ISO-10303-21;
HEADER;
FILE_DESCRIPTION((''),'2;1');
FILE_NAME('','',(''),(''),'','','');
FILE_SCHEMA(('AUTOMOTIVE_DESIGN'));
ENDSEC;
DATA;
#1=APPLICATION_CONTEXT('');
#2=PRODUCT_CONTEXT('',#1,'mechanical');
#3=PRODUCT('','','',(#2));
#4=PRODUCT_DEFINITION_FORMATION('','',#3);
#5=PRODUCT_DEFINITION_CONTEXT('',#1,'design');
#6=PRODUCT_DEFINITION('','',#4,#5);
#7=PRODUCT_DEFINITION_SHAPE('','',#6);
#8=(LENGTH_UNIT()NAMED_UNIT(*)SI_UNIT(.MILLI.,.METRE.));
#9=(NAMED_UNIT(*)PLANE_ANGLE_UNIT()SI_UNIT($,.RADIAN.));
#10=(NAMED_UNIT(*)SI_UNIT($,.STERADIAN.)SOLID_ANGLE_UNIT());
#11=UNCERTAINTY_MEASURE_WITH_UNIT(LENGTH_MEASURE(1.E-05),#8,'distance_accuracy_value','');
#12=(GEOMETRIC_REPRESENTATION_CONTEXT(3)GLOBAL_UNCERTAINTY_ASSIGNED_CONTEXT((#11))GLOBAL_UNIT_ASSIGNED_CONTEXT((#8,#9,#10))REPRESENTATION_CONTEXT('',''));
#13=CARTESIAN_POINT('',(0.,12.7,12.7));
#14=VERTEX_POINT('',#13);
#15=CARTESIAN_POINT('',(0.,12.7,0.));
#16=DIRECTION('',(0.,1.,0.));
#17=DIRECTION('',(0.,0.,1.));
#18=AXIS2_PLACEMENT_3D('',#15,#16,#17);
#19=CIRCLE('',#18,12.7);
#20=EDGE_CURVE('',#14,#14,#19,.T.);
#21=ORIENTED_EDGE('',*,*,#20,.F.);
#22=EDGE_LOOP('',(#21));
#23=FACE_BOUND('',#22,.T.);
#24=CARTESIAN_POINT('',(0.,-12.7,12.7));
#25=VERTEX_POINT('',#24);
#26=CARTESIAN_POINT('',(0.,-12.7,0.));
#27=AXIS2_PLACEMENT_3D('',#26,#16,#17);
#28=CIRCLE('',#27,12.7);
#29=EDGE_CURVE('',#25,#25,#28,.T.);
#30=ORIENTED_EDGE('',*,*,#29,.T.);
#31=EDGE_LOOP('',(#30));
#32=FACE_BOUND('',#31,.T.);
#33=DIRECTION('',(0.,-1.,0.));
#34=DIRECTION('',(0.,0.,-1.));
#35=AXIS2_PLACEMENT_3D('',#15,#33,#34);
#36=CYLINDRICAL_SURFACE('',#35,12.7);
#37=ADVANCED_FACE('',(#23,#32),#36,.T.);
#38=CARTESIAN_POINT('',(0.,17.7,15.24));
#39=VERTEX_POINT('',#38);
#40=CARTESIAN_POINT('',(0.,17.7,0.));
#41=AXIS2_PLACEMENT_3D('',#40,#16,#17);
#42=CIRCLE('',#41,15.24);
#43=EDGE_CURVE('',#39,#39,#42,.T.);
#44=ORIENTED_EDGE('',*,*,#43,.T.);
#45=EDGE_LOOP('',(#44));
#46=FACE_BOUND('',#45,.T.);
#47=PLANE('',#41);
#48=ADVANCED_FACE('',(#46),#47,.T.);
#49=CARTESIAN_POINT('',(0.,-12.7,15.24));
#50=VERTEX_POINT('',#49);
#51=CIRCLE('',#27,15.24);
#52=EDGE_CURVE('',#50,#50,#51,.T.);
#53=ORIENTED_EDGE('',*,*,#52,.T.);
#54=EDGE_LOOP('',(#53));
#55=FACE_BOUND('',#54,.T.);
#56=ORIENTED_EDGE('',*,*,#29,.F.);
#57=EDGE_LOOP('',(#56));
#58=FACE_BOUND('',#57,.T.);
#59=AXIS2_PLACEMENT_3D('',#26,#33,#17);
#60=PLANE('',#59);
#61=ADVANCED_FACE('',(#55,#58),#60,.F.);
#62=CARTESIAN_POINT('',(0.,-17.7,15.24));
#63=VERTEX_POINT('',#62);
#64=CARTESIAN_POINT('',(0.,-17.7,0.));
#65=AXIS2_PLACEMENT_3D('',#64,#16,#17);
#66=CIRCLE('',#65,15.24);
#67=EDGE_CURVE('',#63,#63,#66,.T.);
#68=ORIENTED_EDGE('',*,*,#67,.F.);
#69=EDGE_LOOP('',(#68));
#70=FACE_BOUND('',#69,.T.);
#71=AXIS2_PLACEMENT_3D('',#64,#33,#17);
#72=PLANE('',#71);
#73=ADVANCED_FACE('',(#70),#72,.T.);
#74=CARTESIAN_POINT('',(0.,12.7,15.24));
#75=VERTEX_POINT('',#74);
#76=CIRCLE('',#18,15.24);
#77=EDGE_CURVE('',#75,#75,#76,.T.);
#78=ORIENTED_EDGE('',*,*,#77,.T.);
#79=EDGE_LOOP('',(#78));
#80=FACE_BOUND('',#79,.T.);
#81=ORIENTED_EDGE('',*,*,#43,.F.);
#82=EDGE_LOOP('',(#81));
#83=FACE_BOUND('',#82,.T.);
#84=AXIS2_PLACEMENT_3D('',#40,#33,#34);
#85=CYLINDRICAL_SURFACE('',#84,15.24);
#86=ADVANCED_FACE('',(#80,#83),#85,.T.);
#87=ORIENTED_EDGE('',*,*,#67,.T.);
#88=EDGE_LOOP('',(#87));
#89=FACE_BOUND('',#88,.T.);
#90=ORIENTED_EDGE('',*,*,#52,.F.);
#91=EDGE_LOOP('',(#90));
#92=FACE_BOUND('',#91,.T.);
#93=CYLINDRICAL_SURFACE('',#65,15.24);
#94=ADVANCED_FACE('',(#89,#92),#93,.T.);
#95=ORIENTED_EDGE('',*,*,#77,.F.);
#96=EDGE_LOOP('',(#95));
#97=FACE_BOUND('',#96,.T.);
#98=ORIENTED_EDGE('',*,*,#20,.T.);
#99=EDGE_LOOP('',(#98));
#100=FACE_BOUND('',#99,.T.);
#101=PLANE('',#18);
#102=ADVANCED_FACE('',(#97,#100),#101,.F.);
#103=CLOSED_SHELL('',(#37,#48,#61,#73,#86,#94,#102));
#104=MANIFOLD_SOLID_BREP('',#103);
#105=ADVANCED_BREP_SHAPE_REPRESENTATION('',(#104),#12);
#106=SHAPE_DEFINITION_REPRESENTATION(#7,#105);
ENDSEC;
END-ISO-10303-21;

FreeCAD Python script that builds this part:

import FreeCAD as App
import Part
import Sketcher
from FreeCAD import Vector
Q = App.Units.Quantity

doc = App.newDocument("Part")
params = doc.addObject("Spreadsheet::Sheet", "Params")
for row, (alias, value) in enumerate([
    ("sketch1_diameter", "1 in"),
    ("pad1_length", "1 in"),
    ("sketch2_diameter", "1.2 in"),
    ("pad2_length", "5 mm"),
], start=1):
    params.set(f"A{row}", alias)
    params.set(f"B{row}", "=" + value)
    params.setAlias(f"B{row}", alias)

body = doc.addObject("PartDesign::Body", "Body")

sketch1 = body.newObject("Sketcher::SketchObject", "Sketch")
sketch1.AttachmentSupport = (doc.getObject("XZ_Plane"), [""])
sketch1.MapMode = "FlatFace"
sketch1.addGeometry(Part.Circle(Vector(0, 0, 0), Vector(0, 0, 1), 12.7), False)
sketch1.addConstraint([
    Sketcher.Constraint("Coincident", 0, 3, -1, 1),
    Sketcher.Constraint("Diameter", 0, Q("1 in")),
])
sketch1.setExpression("Constraints[1]", "Params.sketch1_diameter")
pad1 = body.newObject("PartDesign::Pad", "Pad")
pad1.Profile = sketch1
pad1.setExpression("Length", "Params.pad1_length")
pad1.Midplane = True

sketch2 = body.newObject("Sketcher::SketchObject", "Sketch001")
sketch2.AttachmentSupport = (doc.getObject("XZ_Plane"), [""])
sketch2.MapMode = "FlatFace"
sketch2.AttachmentOffset = App.Placement(Vector(0, 0, -0.5 * 25.4), App.Rotation())
sketch2.addGeometry(Part.Circle(Vector(0, 0, 0), Vector(0, 0, 1), 15.24), False)
sketch2.addConstraint([
    Sketcher.Constraint("Coincident", 0, 3, -1, 1),
    Sketcher.Constraint("Diameter", 0, Q("1.2 in")),
])
sketch2.setExpression("Constraints[1]", "Params.sketch2_diameter")
pad2 = body.newObject("PartDesign::Pad", "Pad001")
pad2.Profile = sketch2
pad2.setExpression("Length", "Params.pad2_length")
pad2.Reversed = True
doc.recompute()

mirrored = body.newObject("PartDesign::Mirrored", "Mirrored")
mirrored.Originals = [pad2]
mirrored.MirrorPlane = (doc.getObject("XZ_Plane"), [""])
body.Tip = mirrored

doc.recompute()
